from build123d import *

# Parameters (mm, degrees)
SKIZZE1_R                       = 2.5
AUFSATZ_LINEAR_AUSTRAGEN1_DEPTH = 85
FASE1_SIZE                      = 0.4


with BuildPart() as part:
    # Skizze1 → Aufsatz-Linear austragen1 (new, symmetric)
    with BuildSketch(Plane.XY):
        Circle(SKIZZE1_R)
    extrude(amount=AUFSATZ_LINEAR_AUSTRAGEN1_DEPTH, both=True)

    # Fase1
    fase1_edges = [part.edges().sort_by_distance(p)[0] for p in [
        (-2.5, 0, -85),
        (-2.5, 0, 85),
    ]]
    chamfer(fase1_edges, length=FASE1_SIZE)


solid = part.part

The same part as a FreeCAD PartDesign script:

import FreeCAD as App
import Part
import Sketcher
from FreeCAD import Vector


def edges_at(feature, points):
    """Names of the edges that pass closest to the given points."""
    edges = feature.Shape.Edges
    near = lambda p: min(range(len(edges)), key=lambda i: edges[i].distToShape(Part.Vertex(*p))[0])
    return sorted({f"Edge{near(p) + 1}" for p in points})

doc = App.newDocument("Part")
body = doc.addObject("PartDesign::Body", "Body")

sketch1 = body.newObject("Sketcher::SketchObject", "Sketch")
sketch1.AttachmentSupport = (doc.getObject("XY_Plane"), [""])
sketch1.MapMode = "FlatFace"
sketch1.addGeometry(Part.Circle(Vector(0, 0, 0), Vector(0, 0, 1), 2.5), False)
sketch1.addConstraint(Sketcher.Constraint("Coincident", 0, 3, -1, 1))
sketch1.addConstraint(Sketcher.Constraint("Diameter", 0, 5.0))
pad1 = body.newObject("PartDesign::Pad", "Pad")
pad1.Profile = sketch1
pad1.Length = 170
pad1.Midplane = True
doc.recompute()

chamfer = body.newObject("PartDesign::Chamfer", "Chamfer")
chamfer.Base = (pad1, edges_at(pad1, [(-2.5, 0, -85), (-2.5, 0, 85)]))
chamfer.Size = 0.4

doc.recompute()
